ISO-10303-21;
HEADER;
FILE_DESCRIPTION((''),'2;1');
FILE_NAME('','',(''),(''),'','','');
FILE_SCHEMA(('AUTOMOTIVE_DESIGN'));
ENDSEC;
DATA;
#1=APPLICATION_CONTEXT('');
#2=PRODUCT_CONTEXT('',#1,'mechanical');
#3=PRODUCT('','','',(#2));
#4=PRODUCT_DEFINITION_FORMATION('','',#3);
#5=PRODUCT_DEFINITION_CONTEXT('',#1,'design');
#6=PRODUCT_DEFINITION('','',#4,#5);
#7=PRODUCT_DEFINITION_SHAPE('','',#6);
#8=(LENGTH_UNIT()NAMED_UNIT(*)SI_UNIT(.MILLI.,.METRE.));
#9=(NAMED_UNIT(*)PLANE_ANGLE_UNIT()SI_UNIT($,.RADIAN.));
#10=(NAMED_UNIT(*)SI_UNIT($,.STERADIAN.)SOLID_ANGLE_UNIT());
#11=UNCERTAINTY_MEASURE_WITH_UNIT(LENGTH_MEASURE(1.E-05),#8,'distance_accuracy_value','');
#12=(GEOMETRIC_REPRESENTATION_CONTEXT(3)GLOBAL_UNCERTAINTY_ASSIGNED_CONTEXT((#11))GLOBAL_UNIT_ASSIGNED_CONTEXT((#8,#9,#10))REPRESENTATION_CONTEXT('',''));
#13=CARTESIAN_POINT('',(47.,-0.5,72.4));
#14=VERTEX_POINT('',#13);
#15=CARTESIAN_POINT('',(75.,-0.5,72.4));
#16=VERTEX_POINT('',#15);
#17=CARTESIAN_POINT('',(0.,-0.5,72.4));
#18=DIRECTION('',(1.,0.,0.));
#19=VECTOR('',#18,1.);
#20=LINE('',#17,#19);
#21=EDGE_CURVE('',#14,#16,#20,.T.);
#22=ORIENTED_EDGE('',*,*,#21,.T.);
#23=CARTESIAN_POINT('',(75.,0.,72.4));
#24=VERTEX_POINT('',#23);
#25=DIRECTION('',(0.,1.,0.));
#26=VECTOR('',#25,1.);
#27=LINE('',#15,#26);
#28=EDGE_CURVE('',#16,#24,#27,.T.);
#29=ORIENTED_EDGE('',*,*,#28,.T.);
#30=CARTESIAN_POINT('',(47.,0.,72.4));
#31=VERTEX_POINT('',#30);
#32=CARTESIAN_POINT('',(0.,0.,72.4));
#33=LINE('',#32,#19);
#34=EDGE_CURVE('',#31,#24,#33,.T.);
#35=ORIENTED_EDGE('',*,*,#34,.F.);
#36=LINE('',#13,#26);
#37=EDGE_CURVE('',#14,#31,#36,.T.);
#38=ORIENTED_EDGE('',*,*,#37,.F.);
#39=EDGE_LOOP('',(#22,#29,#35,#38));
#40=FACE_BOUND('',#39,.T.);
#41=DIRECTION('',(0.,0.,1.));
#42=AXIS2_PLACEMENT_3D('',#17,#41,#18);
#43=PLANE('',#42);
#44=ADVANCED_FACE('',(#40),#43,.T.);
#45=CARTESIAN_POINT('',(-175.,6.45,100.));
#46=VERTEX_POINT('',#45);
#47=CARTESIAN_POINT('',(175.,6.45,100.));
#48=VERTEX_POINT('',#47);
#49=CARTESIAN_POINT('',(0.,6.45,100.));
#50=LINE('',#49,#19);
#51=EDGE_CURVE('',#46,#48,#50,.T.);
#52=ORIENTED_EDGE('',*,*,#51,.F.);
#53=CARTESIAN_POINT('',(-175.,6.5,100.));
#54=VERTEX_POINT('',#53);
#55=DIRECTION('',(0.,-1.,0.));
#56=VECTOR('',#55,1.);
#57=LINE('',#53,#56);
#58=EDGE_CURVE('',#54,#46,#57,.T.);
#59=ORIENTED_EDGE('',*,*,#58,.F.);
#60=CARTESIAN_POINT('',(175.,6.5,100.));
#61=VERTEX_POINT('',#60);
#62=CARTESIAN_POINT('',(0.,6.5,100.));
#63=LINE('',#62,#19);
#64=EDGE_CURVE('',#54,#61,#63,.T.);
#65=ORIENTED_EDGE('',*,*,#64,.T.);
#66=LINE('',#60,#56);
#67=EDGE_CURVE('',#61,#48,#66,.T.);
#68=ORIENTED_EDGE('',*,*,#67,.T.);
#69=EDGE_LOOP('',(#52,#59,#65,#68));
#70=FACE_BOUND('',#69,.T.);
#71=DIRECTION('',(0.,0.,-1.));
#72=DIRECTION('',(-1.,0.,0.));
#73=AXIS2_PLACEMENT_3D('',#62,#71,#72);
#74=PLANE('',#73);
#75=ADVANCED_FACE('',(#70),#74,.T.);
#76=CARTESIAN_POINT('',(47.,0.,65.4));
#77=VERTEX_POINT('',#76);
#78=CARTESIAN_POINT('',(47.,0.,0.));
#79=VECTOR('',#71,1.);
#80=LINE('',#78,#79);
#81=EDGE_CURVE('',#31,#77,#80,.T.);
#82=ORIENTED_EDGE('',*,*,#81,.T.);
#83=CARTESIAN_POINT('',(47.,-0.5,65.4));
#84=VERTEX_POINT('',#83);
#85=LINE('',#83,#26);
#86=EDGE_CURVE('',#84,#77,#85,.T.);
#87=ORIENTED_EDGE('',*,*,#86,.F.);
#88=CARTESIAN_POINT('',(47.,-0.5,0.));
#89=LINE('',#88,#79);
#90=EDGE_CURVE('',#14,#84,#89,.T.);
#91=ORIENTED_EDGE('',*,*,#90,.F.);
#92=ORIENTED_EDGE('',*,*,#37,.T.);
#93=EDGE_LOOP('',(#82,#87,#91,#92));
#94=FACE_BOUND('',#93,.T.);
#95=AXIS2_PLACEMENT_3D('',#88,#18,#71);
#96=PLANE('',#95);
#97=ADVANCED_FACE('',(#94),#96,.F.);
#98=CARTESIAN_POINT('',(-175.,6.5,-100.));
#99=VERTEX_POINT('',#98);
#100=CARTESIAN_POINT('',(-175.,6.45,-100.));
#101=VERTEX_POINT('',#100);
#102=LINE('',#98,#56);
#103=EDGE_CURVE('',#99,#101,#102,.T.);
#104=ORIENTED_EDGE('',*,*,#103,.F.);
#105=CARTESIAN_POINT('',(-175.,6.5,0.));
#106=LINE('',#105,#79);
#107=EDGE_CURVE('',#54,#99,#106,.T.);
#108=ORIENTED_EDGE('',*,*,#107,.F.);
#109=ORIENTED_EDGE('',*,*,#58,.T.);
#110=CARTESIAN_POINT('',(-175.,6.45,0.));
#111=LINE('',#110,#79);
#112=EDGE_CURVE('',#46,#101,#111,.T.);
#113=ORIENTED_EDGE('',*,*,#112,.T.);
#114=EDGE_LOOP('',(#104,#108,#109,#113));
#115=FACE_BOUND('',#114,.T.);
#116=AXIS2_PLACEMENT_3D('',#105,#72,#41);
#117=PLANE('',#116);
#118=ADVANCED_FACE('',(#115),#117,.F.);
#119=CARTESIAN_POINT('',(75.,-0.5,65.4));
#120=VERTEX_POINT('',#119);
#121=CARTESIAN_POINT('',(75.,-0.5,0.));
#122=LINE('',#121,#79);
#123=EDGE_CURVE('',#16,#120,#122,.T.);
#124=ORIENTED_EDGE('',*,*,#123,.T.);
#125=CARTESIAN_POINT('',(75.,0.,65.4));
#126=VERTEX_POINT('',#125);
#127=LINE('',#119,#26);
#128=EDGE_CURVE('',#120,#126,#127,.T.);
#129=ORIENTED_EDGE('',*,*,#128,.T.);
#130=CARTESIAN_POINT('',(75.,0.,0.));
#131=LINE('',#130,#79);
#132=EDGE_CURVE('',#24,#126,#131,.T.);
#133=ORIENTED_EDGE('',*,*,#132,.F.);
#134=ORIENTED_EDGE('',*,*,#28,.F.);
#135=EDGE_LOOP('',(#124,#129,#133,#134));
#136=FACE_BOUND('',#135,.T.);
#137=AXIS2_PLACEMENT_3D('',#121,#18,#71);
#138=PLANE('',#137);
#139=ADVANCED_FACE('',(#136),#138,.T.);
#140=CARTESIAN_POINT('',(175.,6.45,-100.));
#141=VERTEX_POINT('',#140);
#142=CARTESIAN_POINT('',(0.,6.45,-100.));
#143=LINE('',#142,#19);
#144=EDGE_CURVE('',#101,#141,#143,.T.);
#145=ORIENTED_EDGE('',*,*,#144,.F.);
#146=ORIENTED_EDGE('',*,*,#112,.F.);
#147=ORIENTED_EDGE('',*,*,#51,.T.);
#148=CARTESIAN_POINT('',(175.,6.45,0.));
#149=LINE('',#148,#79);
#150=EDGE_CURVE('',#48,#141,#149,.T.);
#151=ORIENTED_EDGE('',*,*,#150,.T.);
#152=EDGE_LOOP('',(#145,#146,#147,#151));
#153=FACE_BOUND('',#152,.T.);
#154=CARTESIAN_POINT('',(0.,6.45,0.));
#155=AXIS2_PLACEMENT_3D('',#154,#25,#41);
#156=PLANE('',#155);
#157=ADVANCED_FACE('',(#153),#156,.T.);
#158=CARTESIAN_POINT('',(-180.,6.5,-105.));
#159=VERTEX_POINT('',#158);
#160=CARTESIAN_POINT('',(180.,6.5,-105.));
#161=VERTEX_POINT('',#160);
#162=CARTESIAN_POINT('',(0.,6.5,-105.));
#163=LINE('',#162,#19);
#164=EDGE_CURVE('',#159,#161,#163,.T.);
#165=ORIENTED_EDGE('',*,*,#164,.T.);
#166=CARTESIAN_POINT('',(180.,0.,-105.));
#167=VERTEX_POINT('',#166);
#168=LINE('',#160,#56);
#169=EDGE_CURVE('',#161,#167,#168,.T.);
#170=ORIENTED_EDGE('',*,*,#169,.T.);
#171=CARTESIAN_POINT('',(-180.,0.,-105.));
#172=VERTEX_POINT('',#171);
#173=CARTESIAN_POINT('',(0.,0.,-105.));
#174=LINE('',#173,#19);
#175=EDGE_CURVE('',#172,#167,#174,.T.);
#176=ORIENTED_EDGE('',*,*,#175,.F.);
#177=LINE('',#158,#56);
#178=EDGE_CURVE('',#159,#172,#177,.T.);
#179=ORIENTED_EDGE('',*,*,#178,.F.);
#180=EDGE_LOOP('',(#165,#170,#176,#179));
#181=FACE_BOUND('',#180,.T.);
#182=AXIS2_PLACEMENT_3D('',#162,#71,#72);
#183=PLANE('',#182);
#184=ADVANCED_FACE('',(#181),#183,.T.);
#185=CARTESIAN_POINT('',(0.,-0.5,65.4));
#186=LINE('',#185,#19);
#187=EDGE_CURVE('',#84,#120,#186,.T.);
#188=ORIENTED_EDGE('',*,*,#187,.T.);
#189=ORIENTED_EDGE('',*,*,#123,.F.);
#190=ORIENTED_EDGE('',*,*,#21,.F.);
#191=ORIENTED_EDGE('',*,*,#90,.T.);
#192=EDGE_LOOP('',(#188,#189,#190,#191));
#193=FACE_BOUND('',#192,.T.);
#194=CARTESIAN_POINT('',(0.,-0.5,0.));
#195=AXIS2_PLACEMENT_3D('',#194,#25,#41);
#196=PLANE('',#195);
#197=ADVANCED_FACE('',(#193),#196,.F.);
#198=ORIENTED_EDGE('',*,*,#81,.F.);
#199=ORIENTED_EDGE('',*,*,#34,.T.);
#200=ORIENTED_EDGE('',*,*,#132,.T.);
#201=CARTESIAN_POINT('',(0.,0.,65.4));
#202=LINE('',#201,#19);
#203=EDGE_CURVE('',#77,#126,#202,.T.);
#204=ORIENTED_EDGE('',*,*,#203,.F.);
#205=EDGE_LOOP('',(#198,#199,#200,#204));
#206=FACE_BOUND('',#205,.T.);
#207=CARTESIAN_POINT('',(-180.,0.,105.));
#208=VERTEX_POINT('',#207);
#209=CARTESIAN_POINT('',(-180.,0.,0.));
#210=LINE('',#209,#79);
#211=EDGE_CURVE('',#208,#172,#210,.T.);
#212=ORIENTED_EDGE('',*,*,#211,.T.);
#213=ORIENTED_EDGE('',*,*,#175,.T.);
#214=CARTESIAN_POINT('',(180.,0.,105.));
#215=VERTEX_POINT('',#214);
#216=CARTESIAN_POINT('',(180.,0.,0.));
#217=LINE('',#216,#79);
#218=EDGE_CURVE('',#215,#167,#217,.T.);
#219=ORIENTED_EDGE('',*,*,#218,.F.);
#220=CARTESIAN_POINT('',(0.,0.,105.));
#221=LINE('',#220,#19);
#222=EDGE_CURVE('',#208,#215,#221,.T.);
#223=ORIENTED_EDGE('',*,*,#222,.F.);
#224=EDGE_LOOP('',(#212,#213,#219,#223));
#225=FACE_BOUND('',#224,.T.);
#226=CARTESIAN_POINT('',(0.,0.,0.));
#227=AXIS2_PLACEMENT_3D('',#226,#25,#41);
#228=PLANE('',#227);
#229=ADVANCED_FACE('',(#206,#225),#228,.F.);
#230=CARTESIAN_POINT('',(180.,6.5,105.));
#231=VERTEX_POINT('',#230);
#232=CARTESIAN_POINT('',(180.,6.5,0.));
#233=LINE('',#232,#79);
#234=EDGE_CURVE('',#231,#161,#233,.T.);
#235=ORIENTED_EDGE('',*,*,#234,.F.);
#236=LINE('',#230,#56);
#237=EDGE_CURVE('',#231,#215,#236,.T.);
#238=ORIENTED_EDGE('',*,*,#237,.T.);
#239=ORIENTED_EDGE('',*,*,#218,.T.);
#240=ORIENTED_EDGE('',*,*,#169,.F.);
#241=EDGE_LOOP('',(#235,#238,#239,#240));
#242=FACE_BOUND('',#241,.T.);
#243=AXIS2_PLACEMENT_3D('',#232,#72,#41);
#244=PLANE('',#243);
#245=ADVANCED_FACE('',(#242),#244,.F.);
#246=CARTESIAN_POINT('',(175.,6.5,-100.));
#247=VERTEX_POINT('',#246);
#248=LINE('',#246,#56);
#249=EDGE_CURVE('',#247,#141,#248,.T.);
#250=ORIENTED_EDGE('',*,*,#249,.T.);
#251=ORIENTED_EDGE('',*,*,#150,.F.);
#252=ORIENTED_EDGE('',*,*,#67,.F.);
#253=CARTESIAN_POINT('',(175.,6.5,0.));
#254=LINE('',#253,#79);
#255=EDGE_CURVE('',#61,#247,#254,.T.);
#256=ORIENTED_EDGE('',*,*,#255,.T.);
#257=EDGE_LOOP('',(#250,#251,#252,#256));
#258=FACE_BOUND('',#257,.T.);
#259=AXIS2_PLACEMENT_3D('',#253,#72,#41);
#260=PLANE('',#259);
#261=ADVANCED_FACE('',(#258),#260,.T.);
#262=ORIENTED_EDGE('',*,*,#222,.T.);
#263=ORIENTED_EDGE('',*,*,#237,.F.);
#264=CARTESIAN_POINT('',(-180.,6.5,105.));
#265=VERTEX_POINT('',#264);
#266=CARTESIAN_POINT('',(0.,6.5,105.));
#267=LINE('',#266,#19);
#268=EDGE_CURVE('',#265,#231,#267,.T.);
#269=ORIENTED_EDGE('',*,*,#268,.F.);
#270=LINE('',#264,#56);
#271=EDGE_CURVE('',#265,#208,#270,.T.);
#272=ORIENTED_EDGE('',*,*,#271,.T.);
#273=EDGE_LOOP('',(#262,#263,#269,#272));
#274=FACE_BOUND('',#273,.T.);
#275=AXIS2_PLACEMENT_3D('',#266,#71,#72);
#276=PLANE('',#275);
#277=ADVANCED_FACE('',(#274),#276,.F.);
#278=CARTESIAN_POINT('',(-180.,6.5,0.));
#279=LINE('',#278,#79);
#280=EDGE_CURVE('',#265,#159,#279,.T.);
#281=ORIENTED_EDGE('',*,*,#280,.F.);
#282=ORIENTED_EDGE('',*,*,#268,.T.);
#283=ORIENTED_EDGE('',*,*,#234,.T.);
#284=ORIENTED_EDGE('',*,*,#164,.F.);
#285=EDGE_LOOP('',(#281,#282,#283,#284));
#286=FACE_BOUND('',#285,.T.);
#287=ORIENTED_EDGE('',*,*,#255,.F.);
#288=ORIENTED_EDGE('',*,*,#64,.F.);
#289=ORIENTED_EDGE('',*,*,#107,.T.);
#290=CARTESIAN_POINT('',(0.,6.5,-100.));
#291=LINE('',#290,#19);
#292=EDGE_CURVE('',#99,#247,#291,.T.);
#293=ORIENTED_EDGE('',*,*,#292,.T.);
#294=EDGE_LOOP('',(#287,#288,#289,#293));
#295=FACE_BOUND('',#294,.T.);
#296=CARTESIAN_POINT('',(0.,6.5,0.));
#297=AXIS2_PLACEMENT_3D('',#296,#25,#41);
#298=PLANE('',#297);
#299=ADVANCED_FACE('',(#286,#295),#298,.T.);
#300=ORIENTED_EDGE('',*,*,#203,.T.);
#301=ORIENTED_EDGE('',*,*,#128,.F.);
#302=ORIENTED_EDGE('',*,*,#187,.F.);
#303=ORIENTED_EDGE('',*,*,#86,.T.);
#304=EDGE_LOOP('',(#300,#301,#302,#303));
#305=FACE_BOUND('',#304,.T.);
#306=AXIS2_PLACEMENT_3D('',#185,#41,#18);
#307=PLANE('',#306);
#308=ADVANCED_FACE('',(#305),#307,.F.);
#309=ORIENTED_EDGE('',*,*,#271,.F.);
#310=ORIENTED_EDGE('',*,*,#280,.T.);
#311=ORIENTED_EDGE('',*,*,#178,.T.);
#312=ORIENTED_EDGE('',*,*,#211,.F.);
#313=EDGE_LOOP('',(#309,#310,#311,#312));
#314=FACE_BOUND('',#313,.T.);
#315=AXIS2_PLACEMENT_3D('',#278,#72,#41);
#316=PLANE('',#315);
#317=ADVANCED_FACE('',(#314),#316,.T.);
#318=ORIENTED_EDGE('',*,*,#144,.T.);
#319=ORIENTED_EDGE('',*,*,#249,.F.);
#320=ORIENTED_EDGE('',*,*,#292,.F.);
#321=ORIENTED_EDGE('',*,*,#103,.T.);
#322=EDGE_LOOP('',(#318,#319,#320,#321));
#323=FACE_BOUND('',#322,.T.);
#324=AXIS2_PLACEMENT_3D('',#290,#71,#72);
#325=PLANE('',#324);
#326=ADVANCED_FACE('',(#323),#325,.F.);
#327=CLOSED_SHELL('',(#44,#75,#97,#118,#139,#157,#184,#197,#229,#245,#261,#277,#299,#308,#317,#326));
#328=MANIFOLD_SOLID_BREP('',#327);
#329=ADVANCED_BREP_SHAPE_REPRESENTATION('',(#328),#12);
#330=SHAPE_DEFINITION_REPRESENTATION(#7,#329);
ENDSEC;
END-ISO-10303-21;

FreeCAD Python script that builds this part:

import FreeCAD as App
import Part
import Sketcher
from FreeCAD import Vector


def add_polygon(sketch, points):
    """Adds a closed chain of lines whose ends are joined by coincident constraints."""
    first, n = sketch.GeometryCount, len(points)
    for a, b in zip(points, points[1:] + points[:1]):
        sketch.addGeometry(Part.LineSegment(App.Vector(*a, 0), App.Vector(*b, 0)), False)
    for i in range(n):
        sketch.addConstraint(Sketcher.Constraint("Coincident", first + i, 2, first + (i + 1) % n, 1))

doc = App.newDocument("Part")
body = doc.addObject("PartDesign::Body", "Body")

sketch1 = doc.addObject("Sketcher::SketchObject", "Sketch")
body.addObject(sketch1)
sketch1.AttachmentSupport = (doc.XZ_Plane, [""])
sketch1.MapMode = "FlatFace"
add_polygon(sketch1, [(-175, -100), (-175, 100), (175, 100), (175, -100)])
sketch1.addConstraint(Sketcher.Constraint("Vertical", 0))
sketch1.addConstraint(Sketcher.Constraint("Horizontal", 1))
sketch1.addConstraint(Sketcher.Constraint("Vertical", 2))
sketch1.addConstraint(Sketcher.Constraint("Horizontal", 3))
sketch1.addConstraint(Sketcher.Constraint("Symmetric", 0, 2, 2, 2, -1, 1))
sketch1.addConstraint(Sketcher.Constraint("DistanceX", 1, 1, 1, 2, 350.0))
sketch1.addConstraint(Sketcher.Constraint("DistanceY", 0, 1, 0, 2, 200.0))
pad1 = doc.addObject("PartDesign::Pad", "Pad")
body.addObject(pad1)
pad1.Profile = sketch1
pad1.Length = 6.45
pad1.Reversed = True

sketch2 = doc.addObject("Sketcher::SketchObject", "Sketch001")
body.addObject(sketch2)
sketch2.AttachmentSupport = (doc.XZ_Plane, [""])
sketch2.MapMode = "FlatFace"
add_polygon(sketch2, [(-180, -105), (-180, 105), (180, 105), (180, -105)])
add_polygon(sketch2, [(175, 100), (-175, 100), (-175, -100), (175, -100)])
sketch2.addConstraint(Sketcher.Constraint("Vertical", 0))
sketch2.addConstraint(Sketcher.Constraint("Horizontal", 1))
sketch2.addConstraint(Sketcher.Constraint("Vertical", 2))
sketch2.addConstraint(Sketcher.Constraint("Horizontal", 3))
sketch2.addConstraint(Sketcher.Constraint("Horizontal", 4))
sketch2.addConstraint(Sketcher.Constraint("Vertical", 5))
sketch2.addConstraint(Sketcher.Constraint("Horizontal", 6))
sketch2.addConstraint(Sketcher.Constraint("Vertical", 7))
sketch2.addConstraint(Sketcher.Constraint("Symmetric", 0, 2, 2, 2, -1, 1))
sketch2.addConstraint(Sketcher.Constraint("Symmetric", 4, 2, 6, 2, -1, 1))
sketch2.addConstraint(Sketcher.Constraint("DistanceX", 1, 1, 1, 2, 360.0))
sketch2.addConstraint(Sketcher.Constraint("DistanceX", 4, 2, 4, 1, 350.0))
sketch2.addConstraint(Sketcher.Constraint("DistanceY", 0, 1, 0, 2, 210.0))
sketch2.addConstraint(Sketcher.Constraint("DistanceY", 5, 2, 5, 1, 200.0))
pad2 = doc.addObject("PartDesign::Pad", "Pad001")
body.addObject(pad2)
pad2.Profile = sketch2
pad2.Length = 6.5
pad2.Reversed = True

sketch3 = doc.addObject("Sketcher::SketchObject", "Sketch002")
body.addObject(sketch3)
sketch3.AttachmentSupport = (doc.XZ_Plane, [""])
sketch3.MapMode = "FlatFace"
add_polygon(sketch3, [(47, 65.4), (47, 72.4), (75, 72.4), (75, 65.4)])
sketch3.addConstraint(Sketcher.Constraint("Vertical", 0))
sketch3.addConstraint(Sketcher.Constraint("Horizontal", 1))
sketch3.addConstraint(Sketcher.Constraint("Vertical", 2))
sketch3.addConstraint(Sketcher.Constraint("Horizontal", 3))
sketch3.addConstraint(Sketcher.Constraint("DistanceX", 1, 1, 1, 2, 28.0))
sketch3.addConstraint(Sketcher.Constraint("DistanceY", 0, 1, 0, 2, 7.0))
sketch3.addConstraint(Sketcher.Constraint("DistanceX", -1, 1, 0, 2, 47.0))
sketch3.addConstraint(Sketcher.Constraint("DistanceY", -1, 1, 0, 2, 72.4))
pad3 = doc.addObject("PartDesign::Pad", "Pad002")
body.addObject(pad3)
pad3.Profile = sketch3
pad3.Length = 0.5

doc.recompute()
